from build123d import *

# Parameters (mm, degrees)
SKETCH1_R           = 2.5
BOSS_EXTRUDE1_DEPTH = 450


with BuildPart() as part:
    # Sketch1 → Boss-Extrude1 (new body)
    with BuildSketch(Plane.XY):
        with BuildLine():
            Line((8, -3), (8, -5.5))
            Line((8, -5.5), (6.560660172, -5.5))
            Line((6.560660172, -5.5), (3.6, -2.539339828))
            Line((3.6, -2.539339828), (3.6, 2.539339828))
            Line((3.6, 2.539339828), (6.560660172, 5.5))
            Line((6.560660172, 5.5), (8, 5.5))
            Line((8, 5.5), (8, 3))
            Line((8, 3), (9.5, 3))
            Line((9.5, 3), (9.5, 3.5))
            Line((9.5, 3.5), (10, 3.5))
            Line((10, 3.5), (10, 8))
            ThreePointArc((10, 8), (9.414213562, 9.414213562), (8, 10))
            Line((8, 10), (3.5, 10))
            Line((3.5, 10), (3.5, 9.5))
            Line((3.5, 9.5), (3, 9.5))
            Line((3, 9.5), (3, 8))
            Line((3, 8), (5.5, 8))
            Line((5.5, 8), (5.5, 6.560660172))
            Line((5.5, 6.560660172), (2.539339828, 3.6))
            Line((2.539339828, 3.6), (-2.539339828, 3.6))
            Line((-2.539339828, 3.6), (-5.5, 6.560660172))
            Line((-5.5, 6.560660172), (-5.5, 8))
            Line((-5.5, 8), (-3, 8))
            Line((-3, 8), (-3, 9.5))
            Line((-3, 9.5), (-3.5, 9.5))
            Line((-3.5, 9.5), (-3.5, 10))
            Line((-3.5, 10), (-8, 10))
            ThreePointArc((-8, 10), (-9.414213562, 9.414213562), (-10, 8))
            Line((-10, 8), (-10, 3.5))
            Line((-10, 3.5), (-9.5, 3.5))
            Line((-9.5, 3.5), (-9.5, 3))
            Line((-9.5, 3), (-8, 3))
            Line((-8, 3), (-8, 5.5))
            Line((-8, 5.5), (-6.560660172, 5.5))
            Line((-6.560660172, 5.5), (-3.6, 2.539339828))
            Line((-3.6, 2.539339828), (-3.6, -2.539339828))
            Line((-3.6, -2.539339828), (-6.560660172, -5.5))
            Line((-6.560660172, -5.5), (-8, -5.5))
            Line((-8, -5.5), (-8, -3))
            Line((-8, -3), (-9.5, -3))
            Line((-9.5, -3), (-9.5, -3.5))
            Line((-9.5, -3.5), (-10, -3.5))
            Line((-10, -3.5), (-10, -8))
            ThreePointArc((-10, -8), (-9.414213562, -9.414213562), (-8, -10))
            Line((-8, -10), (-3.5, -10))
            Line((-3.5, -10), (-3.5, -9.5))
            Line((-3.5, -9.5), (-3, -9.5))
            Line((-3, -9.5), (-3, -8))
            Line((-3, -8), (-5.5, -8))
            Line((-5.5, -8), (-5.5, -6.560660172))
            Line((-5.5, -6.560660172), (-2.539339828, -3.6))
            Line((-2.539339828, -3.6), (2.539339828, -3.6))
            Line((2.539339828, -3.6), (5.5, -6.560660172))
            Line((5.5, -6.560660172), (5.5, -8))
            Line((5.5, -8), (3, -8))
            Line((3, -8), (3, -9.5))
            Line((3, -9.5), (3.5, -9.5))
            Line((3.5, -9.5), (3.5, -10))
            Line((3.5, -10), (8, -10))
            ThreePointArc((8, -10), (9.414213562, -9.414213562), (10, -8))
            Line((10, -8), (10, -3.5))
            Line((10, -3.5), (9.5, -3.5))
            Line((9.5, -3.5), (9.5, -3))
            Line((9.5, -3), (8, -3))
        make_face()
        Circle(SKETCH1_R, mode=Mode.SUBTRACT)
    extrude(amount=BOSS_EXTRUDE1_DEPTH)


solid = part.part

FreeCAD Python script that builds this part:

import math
import FreeCAD as App
import Part
import Sketcher

V = App.Vector

doc = App.newDocument("Part")
body = doc.addObject("PartDesign::Body", "Body")

# Sketch on XY plane
sketch1 = body.newObject("Sketcher::SketchObject", "Sketch")
sketch1.AttachmentSupport = (doc.getObject("XY_Plane"), [""])
sketch1.MapMode = "FlatFace"
sketch1.addGeometry(Part.LineSegment(V(8, -3, 0), V(8, -5.5, 0)), False)
sketch1.addGeometry(Part.LineSegment(V(8, -5.5, 0), V(6.6, -5.5, 0)), False)
sketch1.addGeometry(Part.LineSegment(V(6.6, -5.5, 0), V(3.6, -2.5, 0)), False)
sketch1.addGeometry(Part.LineSegment(V(3.6, -2.5, 0), V(3.6, 2.5, 0)), False)
sketch1.addGeometry(Part.LineSegment(V(3.6, 2.5, 0), V(6.6, 5.5, 0)), False)
sketch1.addGeometry(Part.LineSegment(V(6.6, 5.5, 0), V(8, 5.5, 0)), False)
sketch1.addGeometry(Part.LineSegment(V(8, 5.5, 0), V(8, 3, 0)), False)
sketch1.addGeometry(Part.LineSegment(V(8, 3, 0), V(9.5, 3, 0)), False)
sketch1.addGeometry(Part.LineSegment(V(9.5, 3, 0), V(9.5, 3.5, 0)), False)
sketch1.addGeometry(Part.LineSegment(V(9.5, 3.5, 0), V(10, 3.5, 0)), False)
sketch1.addGeometry(Part.LineSegment(V(10, 3.5, 0), V(10, 8, 0)), False)
sketch1.addGeometry(Part.ArcOfCircle(Part.Circle(V(8, 8, 0), V(0, 0, 1), 2), math.radians(0), math.radians(90)), False)
sketch1.addGeometry(Part.LineSegment(V(8, 10, 0), V(3.5, 10, 0)), False)
sketch1.addGeometry(Part.LineSegment(V(3.5, 10, 0), V(3.5, 9.5, 0)), False)
sketch1.addGeometry(Part.LineSegment(V(3.5, 9.5, 0), V(3, 9.5, 0)), False)
sketch1.addGeometry(Part.LineSegment(V(3, 9.5, 0), V(3, 8, 0)), False)
sketch1.addGeometry(Part.LineSegment(V(3, 8, 0), V(5.5, 8, 0)), False)
sketch1.addGeometry(Part.LineSegment(V(5.5, 8, 0), V(5.5, 6.6, 0)), False)
sketch1.addGeometry(Part.LineSegment(V(5.5, 6.6, 0), V(2.5, 3.6, 0)), False)
sketch1.addGeometry(Part.LineSegment(V(2.5, 3.6, 0), V(-2.5, 3.6, 0)), False)
sketch1.addGeometry(Part.LineSegment(V(-2.5, 3.6, 0), V(-5.5, 6.6, 0)), False)
sketch1.addGeometry(Part.LineSegment(V(-5.5, 6.6, 0), V(-5.5, 8, 0)), False)
sketch1.addGeometry(Part.LineSegment(V(-5.5, 8, 0), V(-3, 8, 0)), False)
sketch1.addGeometry(Part.LineSegment(V(-3, 8, 0), V(-3, 9.5, 0)), False)
sketch1.addGeometry(Part.LineSegment(V(-3, 9.5, 0), V(-3.5, 9.5, 0)), False)
sketch1.addGeometry(Part.LineSegment(V(-3.5, 9.5, 0), V(-3.5, 10, 0)), False)
sketch1.addGeometry(Part.LineSegment(V(-3.5, 10, 0), V(-8, 10, 0)), False)
sketch1.addGeometry(Part.ArcOfCircle(Part.Circle(V(-8, 8, 0), V(0, 0, 1), 2), math.radians(90), math.radians(180)), False)
sketch1.addGeometry(Part.LineSegment(V(-10, 8, 0), V(-10, 3.5, 0)), False)
sketch1.addGeometry(Part.LineSegment(V(-10, 3.5, 0), V(-9.5, 3.5, 0)), False)
sketch1.addGeometry(Part.LineSegment(V(-9.5, 3.5, 0), V(-9.5, 3, 0)), False)
sketch1.addGeometry(Part.LineSegment(V(-9.5, 3, 0), V(-8, 3, 0)), False)
sketch1.addGeometry(Part.LineSegment(V(-8, 3, 0), V(-8, 5.5, 0)), False)
sketch1.addGeometry(Part.LineSegment(V(-8, 5.5, 0), V(-6.6, 5.5, 0)), False)
sketch1.addGeometry(Part.LineSegment(V(-6.6, 5.5, 0), V(-3.6, 2.5, 0)), False)
sketch1.addGeometry(Part.LineSegment(V(-3.6, 2.5, 0), V(-3.6, -2.5, 0)), False)
sketch1.addGeometry(Part.LineSegment(V(-3.6, -2.5, 0), V(-6.6, -5.5, 0)), False)
sketch1.addGeometry(Part.LineSegment(V(-6.6, -5.5, 0), V(-8, -5.5, 0)), False)
sketch1.addGeometry(Part.LineSegment(V(-8, -5.5, 0), V(-8, -3, 0)), False)
sketch1.addGeometry(Part.LineSegment(V(-8, -3, 0), V(-9.5, -3, 0)), False)
sketch1.addGeometry(Part.LineSegment(V(-9.5, -3, 0), V(-9.5, -3.5, 0)), False)
sketch1.addGeometry(Part.LineSegment(V(-9.5, -3.5, 0), V(-10, -3.5, 0)), False)
sketch1.addGeometry(Part.LineSegment(V(-10, -3.5, 0), V(-10, -8, 0)), False)
sketch1.addGeometry(Part.ArcOfCircle(Part.Circle(V(-8, -8, 0), V(0, 0, 1), 2), math.radians(-180), math.radians(-90)), False)
sketch1.addGeometry(Part.LineSegment(V(-8, -10, 0), V(-3.5, -10, 0)), False)
sketch1.addGeometry(Part.LineSegment(V(-3.5, -10, 0), V(-3.5, -9.5, 0)), False)
sketch1.addGeometry(Part.LineSegment(V(-3.5, -9.5, 0), V(-3, -9.5, 0)), False)
sketch1.addGeometry(Part.LineSegment(V(-3, -9.5, 0), V(-3, -8, 0)), False)
sketch1.addGeometry(Part.LineSegment(V(-3, -8, 0), V(-5.5, -8, 0)), False)
sketch1.addGeometry(Part.LineSegment(V(-5.5, -8, 0), V(-5.5, -6.6, 0)), False)
sketch1.addGeometry(Part.LineSegment(V(-5.5, -6.6, 0), V(-2.5, -3.6, 0)), False)
sketch1.addGeometry(Part.LineSegment(V(-2.5, -3.6, 0), V(2.5, -3.6, 0)), False)
sketch1.addGeometry(Part.LineSegment(V(2.5, -3.6, 0), V(5.5, -6.6, 0)), False)
sketch1.addGeometry(Part.LineSegment(V(5.5, -6.6, 0), V(5.5, -8, 0)), False)
sketch1.addGeometry(Part.LineSegment(V(5.5, -8, 0), V(3, -8, 0)), False)
sketch1.addGeometry(Part.LineSegment(V(3, -8, 0), V(3, -9.5, 0)), False)
sketch1.addGeometry(Part.LineSegment(V(3, -9.5, 0), V(3.5, -9.5, 0)), False)
sketch1.addGeometry(Part.LineSegment(V(3.5, -9.5, 0), V(3.5, -10, 0)), False)
sketch1.addGeometry(Part.LineSegment(V(3.5, -10, 0), V(8, -10, 0)), False)
sketch1.addGeometry(Part.ArcOfCircle(Part.Circle(V(8, -8, 0), V(0, 0, 1), 2), math.radians(-90), math.radians(0)), False)
sketch1.addGeometry(Part.LineSegment(V(10, -8, 0), V(10, -3.5, 0)), False)
sketch1.addGeometry(Part.LineSegment(V(10, -3.5, 0), V(9.5, -3.5, 0)), False)
sketch1.addGeometry(Part.LineSegment(V(9.5, -3.5, 0), V(9.5, -3, 0)), False)
sketch1.addGeometry(Part.LineSegment(V(9.5, -3, 0), V(8, -3, 0)), False)
sketch1.addGeometry(Part.Circle(V(0, 0, 0), V(0, 0, 1), 2.5), False)
sketch1.addConstraint(Sketcher.Constraint("Coincident", 0, 2, 1, 1))
sketch1.addConstraint(Sketcher.Constraint("Coincident", 1, 2, 2, 1))
sketch1.addConstraint(Sketcher.Constraint("Coincident", 2, 2, 3, 1))
sketch1.addConstraint(Sketcher.Constraint("Coincident", 3, 2, 4, 1))
sketch1.addConstraint(Sketcher.Constraint("Coincident", 4, 2, 5, 1))
sketch1.addConstraint(Sketcher.Constraint("Coincident", 5, 2, 6, 1))
sketch1.addConstraint(Sketcher.Constraint("Coincident", 6, 2, 7, 1))
sketch1.addConstraint(Sketcher.Constraint("Coincident", 7, 2, 8, 1))
sketch1.addConstraint(Sketcher.Constraint("Coincident", 8, 2, 9, 1))
sketch1.addConstraint(Sketcher.Constraint("Coincident", 9, 2, 10, 1))
sketch1.addConstraint(Sketcher.Constraint("Tangent", 10, 2, 11, 1))
sketch1.addConstraint(Sketcher.Constraint("Tangent", 11, 2, 12, 1))
sketch1.addConstraint(Sketcher.Constraint("Coincident", 12, 2, 13, 1))
sketch1.addConstraint(Sketcher.Constraint("Coincident", 13, 2, 14, 1))
sketch1.addConstraint(Sketcher.Constraint("Coincident", 14, 2, 15, 1))
sketch1.addConstraint(Sketcher.Constraint("Coincident", 15, 2, 16, 1))
sketch1.addConstraint(Sketcher.Constraint("Coincident", 16, 2, 17, 1))
sketch1.addConstraint(Sketcher.Constraint("Coincident", 17, 2, 18, 1))
sketch1.addConstraint(Sketcher.Constraint("Coincident", 18, 2, 19, 1))
sketch1.addConstraint(Sketcher.Constraint("Coincident", 19, 2, 20, 1))
sketch1.addConstraint(Sketcher.Constraint("Coincident", 20, 2, 21, 1))
sketch1.addConstraint(Sketcher.Constraint("Coincident", 21, 2, 22, 1))
sketch1.addConstraint(Sketcher.Constraint("Coincident", 22, 2, 23, 1))
sketch1.addConstraint(Sketcher.Constraint("Coincident", 23, 2, 24, 1))
sketch1.addConstraint(Sketcher.Constraint("Coincident", 24, 2, 25, 1))
sketch1.addConstraint(Sketcher.Constraint("Coincident", 25, 2, 26, 1))
sketch1.addConstraint(Sketcher.Constraint("Tangent", 26, 2, 27, 1))
sketch1.addConstraint(Sketcher.Constraint("Tangent", 27, 2, 28, 1))
sketch1.addConstraint(Sketcher.Constraint("Coincident", 28, 2, 29, 1))
sketch1.addConstraint(Sketcher.Constraint("Coincident", 29, 2, 30, 1))
sketch1.addConstraint(Sketcher.Constraint("Coincident", 30, 2, 31, 1))
sketch1.addConstraint(Sketcher.Constraint("Coincident", 31, 2, 32, 1))
sketch1.addConstraint(Sketcher.Constraint("Coincident", 32, 2, 33, 1))
sketch1.addConstraint(Sketcher.Constraint("Coincident", 33, 2, 34, 1))
sketch1.addConstraint(Sketcher.Constraint("Coincident", 34, 2, 35, 1))
sketch1.addConstraint(Sketcher.Constraint("Coincident", 35, 2, 36, 1))
sketch1.addConstraint(Sketcher.Constraint("Coincident", 36, 2, 37, 1))
sketch1.addConstraint(Sketcher.Constraint("Coincident", 37, 2, 38, 1))
sketch1.addConstraint(Sketcher.Constraint("Coincident", 38, 2, 39, 1))
sketch1.addConstraint(Sketcher.Constraint("Coincident", 39, 2, 40, 1))
sketch1.addConstraint(Sketcher.Constraint("Coincident", 40, 2, 41, 1))
sketch1.addConstraint(Sketcher.Constraint("Coincident", 41, 2, 42, 1))
sketch1.addConstraint(Sketcher.Constraint("Tangent", 42, 2, 43, 1))
sketch1.addConstraint(Sketcher.Constraint("Tangent", 43, 2, 44, 1))
sketch1.addConstraint(Sketcher.Constraint("Coincident", 44, 2, 45, 1))
sketch1.addConstraint(Sketcher.Constraint("Coincident", 45, 2, 46, 1))
sketch1.addConstraint(Sketcher.Constraint("Coincident", 46, 2, 47, 1))
sketch1.addConstraint(Sketcher.Constraint("Coincident", 47, 2, 48, 1))
sketch1.addConstraint(Sketcher.Constraint("Coincident", 48, 2, 49, 1))
sketch1.addConstraint(Sketcher.Constraint("Coincident", 49, 2, 50, 1))
sketch1.addConstraint(Sketcher.Constraint("Coincident", 50, 2, 51, 1))
sketch1.addConstraint(Sketcher.Constraint("Coincident", 51, 2, 52, 1))
sketch1.addConstraint(Sketcher.Constraint("Coincident", 52, 2, 53, 1))
sketch1.addConstraint(Sketcher.Constraint("Coincident", 53, 2, 54, 1))
sketch1.addConstraint(Sketcher.Constraint("Coincident", 54, 2, 55, 1))
sketch1.addConstraint(Sketcher.Constraint("Coincident", 55, 2, 56, 1))
sketch1.addConstraint(Sketcher.Constraint("Coincident", 56, 2, 57, 1))
sketch1.addConstraint(Sketcher.Constraint("Coincident", 57, 2, 58, 1))
sketch1.addConstraint(Sketcher.Constraint("Tangent", 58, 2, 59, 1))
sketch1.addConstraint(Sketcher.Constraint("Tangent", 59, 2, 60, 1))
sketch1.addConstraint(Sketcher.Constraint("Coincident", 60, 2, 61, 1))
sketch1.addConstraint(Sketcher.Constraint("Coincident", 61, 2, 62, 1))
sketch1.addConstraint(Sketcher.Constraint("Coincident", 62, 2, 63, 1))
sketch1.addConstraint(Sketcher.Constraint("Coincident", 63, 2, 0, 1))
sketch1.addConstraint(Sketcher.Constraint("Vertical", 0))
sketch1.addConstraint(Sketcher.Constraint("Horizontal", 1))
sketch1.addConstraint(Sketcher.Constraint("Vertical", 3))
sketch1.addConstraint(Sketcher.Constraint("Horizontal", 5))
sketch1.addConstraint(Sketcher.Constraint("Vertical", 6))
sketch1.addConstraint(Sketcher.Constraint("Horizontal", 7))
sketch1.addConstraint(Sketcher.Constraint("Vertical", 8))
sketch1.addConstraint(Sketcher.Constraint("Horizontal", 9))
sketch1.addConstraint(Sketcher.Constraint("Vertical", 10))
sketch1.addConstraint(Sketcher.Constraint("Horizontal", 12))
sketch1.addConstraint(Sketcher.Constraint("Vertical", 13))
sketch1.addConstraint(Sketcher.Constraint("Horizontal", 14))
sketch1.addConstraint(Sketcher.Constraint("Vertical", 15))
sketch1.addConstraint(Sketcher.Constraint("Horizontal", 16))
sketch1.addConstraint(Sketcher.Constraint("Vertical", 17))
sketch1.addConstraint(Sketcher.Constraint("Horizontal", 19))
sketch1.addConstraint(Sketcher.Constraint("Vertical", 21))
sketch1.addConstraint(Sketcher.Constraint("Horizontal", 22))
sketch1.addConstraint(Sketcher.Constraint("Vertical", 23))
sketch1.addConstraint(Sketcher.Constraint("Horizontal", 24))
sketch1.addConstraint(Sketcher.Constraint("Vertical", 25))
sketch1.addConstraint(Sketcher.Constraint("Horizontal", 26))
sketch1.addConstraint(Sketcher.Constraint("Vertical", 28))
sketch1.addConstraint(Sketcher.Constraint("Horizontal", 29))
sketch1.addConstraint(Sketcher.Constraint("Vertical", 30))
sketch1.addConstraint(Sketcher.Constraint("Horizontal", 31))
sketch1.addConstraint(Sketcher.Constraint("Vertical", 32))
sketch1.addConstraint(Sketcher.Constraint("Horizontal", 33))
sketch1.addConstraint(Sketcher.Constraint("Vertical", 35))
sketch1.addConstraint(Sketcher.Constraint("Horizontal", 37))
sketch1.addConstraint(Sketcher.Constraint("Vertical", 38))
sketch1.addConstraint(Sketcher.Constraint("Horizontal", 39))
sketch1.addConstraint(Sketcher.Constraint("Vertical", 40))
sketch1.addConstraint(Sketcher.Constraint("Horizontal", 41))
sketch1.addConstraint(Sketcher.Constraint("Vertical", 42))
sketch1.addConstraint(Sketcher.Constraint("Horizontal", 44))
sketch1.addConstraint(Sketcher.Constraint("Vertical", 45))
sketch1.addConstraint(Sketcher.Constraint("Horizontal", 46))
sketch1.addConstraint(Sketcher.Constraint("Vertical", 47))
sketch1.addConstraint(Sketcher.Constraint("Horizontal", 48))
sketch1.addConstraint(Sketcher.Constraint("Vertical", 49))
sketch1.addConstraint(Sketcher.Constraint("Horizontal", 51))
sketch1.addConstraint(Sketcher.Constraint("Vertical", 53))
sketch1.addConstraint(Sketcher.Constraint("Horizontal", 54))
sketch1.addConstraint(Sketcher.Constraint("Vertical", 55))
sketch1.addConstraint(Sketcher.Constraint("Horizontal", 56))
sketch1.addConstraint(Sketcher.Constraint("Vertical", 57))
sketch1.addConstraint(Sketcher.Constraint("Horizontal", 58))
sketch1.addConstraint(Sketcher.Constraint("Vertical", 60))
sketch1.addConstraint(Sketcher.Constraint("Horizontal", 61))
sketch1.addConstraint(Sketcher.Constraint("Vertical", 62))
sketch1.addConstraint(Sketcher.Constraint("Horizontal", 63))
sketch1.addConstraint(Sketcher.Constraint("Coincident", 64, 3, -1, 1))
sketch1.addConstraint(Sketcher.Constraint("Equal", 11, 27))
sketch1.addConstraint(Sketcher.Constraint("Equal", 27, 43))
sketch1.addConstraint(Sketcher.Constraint("Equal", 43, 59))
sketch1.addConstraint(Sketcher.Constraint("Symmetric", 11, 3, 43, 3, -1, 1))
sketch1.addConstraint(Sketcher.Constraint("Symmetric", 27, 3, 59, 3, -1, 1))
sketch1.addConstraint(Sketcher.Constraint("Symmetric", 0, 2, 32, 2, -1, 1))
sketch1.addConstraint(Sketcher.Constraint("Symmetric", 2, 2, 34, 2, -1, 1))
sketch1.addConstraint(Sketcher.Constraint("Symmetric", 4, 2, 36, 2, -1, 1))
sketch1.addConstraint(Sketcher.Constraint("Symmetric", 6, 2, 38, 2, -1, 1))
sketch1.addConstraint(Sketcher.Constraint("Symmetric", 8, 2, 40, 2, -1, 1))
sketch1.addConstraint(Sketcher.Constraint("Symmetric", 13, 2, 45, 2, -1, 1))
sketch1.addConstraint(Sketcher.Constraint("Symmetric", 15, 2, 47, 2, -1, 1))
sketch1.addConstraint(Sketcher.Constraint("Symmetric", 17, 2, 49, 2, -1, 1))
sketch1.addConstraint(Sketcher.Constraint("Symmetric", 18, 2, 50, 2, -1, 1))
sketch1.addConstraint(Sketcher.Constraint("Symmetric", 20, 2, 52, 2, -1, 1))
sketch1.addConstraint(Sketcher.Constraint("Symmetric", 22, 2, 54, 2, -1, 1))
sketch1.addConstraint(Sketcher.Constraint("Symmetric", 24, 2, 56, 2, -1, 1))
sketch1.addConstraint(Sketcher.Constraint("Symmetric", 29, 2, 61, 2, -1, 1))
sketch1.addConstraint(Sketcher.Constraint("Symmetric", 11, 3, 27, 3, -2))
sketch1.addConstraint(Sketcher.Constraint("Symmetric", 17, 2, 20, 2, -2))
sketch1.addConstraint(Sketcher.Constraint("Symmetric", 15, 2, 22, 2, -2))
sketch1.addConstraint(Sketcher.Constraint("Symmetric", 13, 2, 24, 2, -2))
sketch1.addConstraint(Sketcher.Constraint("Symmetric", 8, 2, 29, 2, -2))
sketch1.addConstraint(Sketcher.Constraint("Symmetric", 6, 2, 31, 2, -2))
sketch1.addConstraint(Sketcher.Constraint("Symmetric", 4, 2, 33, 2, -2))
sketch1.addConstraint(Sketcher.Constraint("Perpendicular", 2, 4))
sketch1.addConstraint(Sketcher.Constraint("Parallel", 4, 18))
sketch1.addConstraint(Sketcher.Constraint("Perpendicular", 18, 20))
sketch1.addConstraint(Sketcher.Constraint("Parallel", 20, 34))
sketch1.addConstraint(Sketcher.Constraint("Perpendicular", 34, 36))
sketch1.addConstraint(Sketcher.Constraint("Perpendicular", 50, 52))
sketch1.addConstraint(Sketcher.Constraint("Horizontal", 10, 2, 15, 2))
sketch1.addConstraint(Sketcher.Constraint("Horizontal", 3, 2, 34, 2))
sketch1.addConstraint(Sketcher.Constraint("Horizontal", 39, 2, 62, 2))
sketch1.addConstraint(Sketcher.Constraint("Vertical", 59, 3, 0, 2))
sketch1.addConstraint(Sketcher.Constraint("Equal", 9, 14))
sketch1.addConstraint(Sketcher.Constraint("Equal", 54, 0))
sketch1.addConstraint(Sketcher.Constraint("Equal", 51, 3))
sketch1.addConstraint(Sketcher.Constraint("Equal", 61, 8))
sketch1.addConstraint(Sketcher.Constraint("Equal", 58, 10))
sketch1.addConstraint(Sketcher.Constraint("Equal", 8, 13))
sketch1.addConstraint(Sketcher.Constraint("Equal", 37, 17))
sketch1.addConstraint(Sketcher.Constraint("Equal", 4, 18))
sketch1.addConstraint(Sketcher.Constraint("Diameter", 64, 5.0))
sketch1.addConstraint(Sketcher.Constraint("Radius", 11, 2.0))
sketch1.addConstraint(Sketcher.Constraint("DistanceX", 7, 1, 7, 2, 1.5))
sketch1.addConstraint(Sketcher.Constraint("DistanceX", 12, 2, 12, 1, 4.5))
sketch1.addConstraint(Sketcher.Constraint("DistanceX", 16, 1, 16, 2, 2.5))
sketch1.addConstraint(Sketcher.Constraint("DistanceX", -1, 1, 11, 3, 8.0))
sketch1.addConstraint(Sketcher.Constraint("DistanceX", -1, 1, 2, 2, 3.6))
sketch1.addConstraint(Sketcher.Constraint("DistanceX", 1, 2, 1, 1, 1.43934))
pad1 = body.newObject("PartDesign::Pad", "Pad")
pad1.Profile = sketch1
pad1.Length = 450

doc.recompute()
